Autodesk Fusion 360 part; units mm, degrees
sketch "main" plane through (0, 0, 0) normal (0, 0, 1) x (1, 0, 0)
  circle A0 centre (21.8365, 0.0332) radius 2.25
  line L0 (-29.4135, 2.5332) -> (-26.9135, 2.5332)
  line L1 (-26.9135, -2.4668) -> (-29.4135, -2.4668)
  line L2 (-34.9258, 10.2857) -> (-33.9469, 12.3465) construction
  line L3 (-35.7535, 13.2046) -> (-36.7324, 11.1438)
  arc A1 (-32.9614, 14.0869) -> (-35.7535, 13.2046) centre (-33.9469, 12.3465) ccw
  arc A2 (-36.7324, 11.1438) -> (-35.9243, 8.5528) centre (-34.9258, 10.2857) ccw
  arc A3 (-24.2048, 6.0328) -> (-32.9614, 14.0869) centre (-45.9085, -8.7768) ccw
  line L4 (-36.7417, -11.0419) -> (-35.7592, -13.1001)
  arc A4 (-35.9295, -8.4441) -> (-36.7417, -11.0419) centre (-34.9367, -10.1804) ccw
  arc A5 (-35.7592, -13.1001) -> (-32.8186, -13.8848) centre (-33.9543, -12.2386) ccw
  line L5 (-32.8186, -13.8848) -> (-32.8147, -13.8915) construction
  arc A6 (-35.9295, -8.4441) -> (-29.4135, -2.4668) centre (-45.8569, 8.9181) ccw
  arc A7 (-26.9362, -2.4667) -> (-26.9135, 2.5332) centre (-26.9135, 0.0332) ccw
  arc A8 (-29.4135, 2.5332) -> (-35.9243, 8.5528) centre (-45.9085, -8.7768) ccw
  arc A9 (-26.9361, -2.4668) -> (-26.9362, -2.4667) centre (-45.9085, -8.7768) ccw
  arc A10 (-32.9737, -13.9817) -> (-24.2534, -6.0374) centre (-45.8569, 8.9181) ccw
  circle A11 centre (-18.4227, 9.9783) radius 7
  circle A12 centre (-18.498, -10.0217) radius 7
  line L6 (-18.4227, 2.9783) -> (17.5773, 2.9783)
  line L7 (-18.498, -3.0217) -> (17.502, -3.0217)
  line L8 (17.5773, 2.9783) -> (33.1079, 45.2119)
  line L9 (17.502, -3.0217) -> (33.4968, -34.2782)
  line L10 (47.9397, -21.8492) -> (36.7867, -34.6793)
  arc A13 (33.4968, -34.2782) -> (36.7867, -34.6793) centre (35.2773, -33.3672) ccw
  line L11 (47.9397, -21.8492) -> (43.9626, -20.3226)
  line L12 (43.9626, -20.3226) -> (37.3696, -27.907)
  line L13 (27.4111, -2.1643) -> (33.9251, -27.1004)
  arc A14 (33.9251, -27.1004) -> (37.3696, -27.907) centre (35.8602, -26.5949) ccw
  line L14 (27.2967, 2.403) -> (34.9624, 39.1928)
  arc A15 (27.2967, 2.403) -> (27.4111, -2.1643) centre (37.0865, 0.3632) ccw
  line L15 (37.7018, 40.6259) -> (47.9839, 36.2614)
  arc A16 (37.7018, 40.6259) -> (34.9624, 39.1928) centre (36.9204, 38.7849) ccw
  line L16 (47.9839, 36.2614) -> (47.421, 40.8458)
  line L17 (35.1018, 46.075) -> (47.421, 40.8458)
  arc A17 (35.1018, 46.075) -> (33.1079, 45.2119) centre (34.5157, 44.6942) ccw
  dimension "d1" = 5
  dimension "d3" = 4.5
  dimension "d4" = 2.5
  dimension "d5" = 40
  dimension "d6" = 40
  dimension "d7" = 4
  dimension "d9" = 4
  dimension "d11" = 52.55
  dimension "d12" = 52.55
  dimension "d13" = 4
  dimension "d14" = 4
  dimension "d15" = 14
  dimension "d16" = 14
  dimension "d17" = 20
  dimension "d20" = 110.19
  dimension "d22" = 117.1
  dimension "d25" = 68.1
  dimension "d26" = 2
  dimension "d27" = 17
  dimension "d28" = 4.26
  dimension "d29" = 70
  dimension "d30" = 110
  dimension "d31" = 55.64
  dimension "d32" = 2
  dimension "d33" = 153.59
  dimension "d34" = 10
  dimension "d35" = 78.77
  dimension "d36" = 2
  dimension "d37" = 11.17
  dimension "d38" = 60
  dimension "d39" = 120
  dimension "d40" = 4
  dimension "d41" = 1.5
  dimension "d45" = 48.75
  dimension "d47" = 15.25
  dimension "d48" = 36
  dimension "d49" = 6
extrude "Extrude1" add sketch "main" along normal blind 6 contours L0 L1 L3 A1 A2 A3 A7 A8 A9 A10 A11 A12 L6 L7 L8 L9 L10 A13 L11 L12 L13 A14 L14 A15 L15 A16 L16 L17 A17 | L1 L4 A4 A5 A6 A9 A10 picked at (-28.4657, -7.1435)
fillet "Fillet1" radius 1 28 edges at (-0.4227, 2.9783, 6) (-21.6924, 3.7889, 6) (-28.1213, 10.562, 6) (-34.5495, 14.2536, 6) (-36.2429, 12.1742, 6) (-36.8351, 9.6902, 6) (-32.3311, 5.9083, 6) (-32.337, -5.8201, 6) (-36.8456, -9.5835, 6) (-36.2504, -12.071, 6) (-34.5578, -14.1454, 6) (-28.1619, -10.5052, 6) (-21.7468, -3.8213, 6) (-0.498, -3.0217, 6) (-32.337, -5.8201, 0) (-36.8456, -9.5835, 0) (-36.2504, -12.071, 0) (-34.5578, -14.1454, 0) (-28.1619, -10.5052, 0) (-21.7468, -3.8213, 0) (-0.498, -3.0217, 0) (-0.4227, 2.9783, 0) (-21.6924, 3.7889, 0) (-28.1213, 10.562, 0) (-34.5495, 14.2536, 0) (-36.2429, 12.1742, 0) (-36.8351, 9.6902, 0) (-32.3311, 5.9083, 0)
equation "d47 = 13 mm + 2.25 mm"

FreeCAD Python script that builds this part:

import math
import FreeCAD as App
import Part
import Sketcher
Q = App.Units.Quantity


def edges_at(feature, points):
    """Names of the edges that pass closest to the given points."""
    edges = feature.Shape.Edges
    near = lambda p: min(range(len(edges)), key=lambda i: edges[i].distToShape(Part.Vertex(*p))[0])
    return sorted({f"Edge{near(p) + 1}" for p in points})

doc = App.newDocument("Part")
params = doc.addObject("Spreadsheet::Sheet", "Params")
for row, (alias, value) in enumerate([
    ("sketch1_radius", "20 mm"),
    ("sketch1_radius2", "2 mm"),
    ("sketch1_radius3", "7 mm"),
    ("sketch1_radius4", "10 mm"),
    ("sketch1_diameter", "4.5 mm"),
    ("pad1_length", "6 mm"),
    ("fillet_radius", "1 mm"),
], start=1):
    params.set(f"A{row}", alias)
    params.set(f"B{row}", "=" + value)
    params.setAlias(f"B{row}", alias)

body = doc.addObject("PartDesign::Body", "Body")

sketch1 = doc.addObject("Sketcher::SketchObject", "Sketch")
body.addObject(sketch1)
sketch1.AttachmentSupport = (doc.XY_Plane, [""])
sketch1.MapMode = "FlatFace"
sketch1.addGeometry(Part.ArcOfCircle(Part.Circle(App.Vector(-45.9085, -8.7768, 0), App.Vector(0, 0, 1), 20.000028), math.radians(34.436964), math.radians(60.052223)), False)
sketch1.addGeometry(Part.LineSegment(App.Vector(-29.4135, 2.5332, 0), App.Vector(-26.9135, 2.5332, 0)), False)
sketch1.addGeometry(Part.ArcOfCircle(Part.Circle(App.Vector(-26.9135, 0.0332, 0), App.Vector(0, 0, 1), 2.500003), math.radians(-90), math.radians(90)), False)
sketch1.addGeometry(Part.LineSegment(App.Vector(-26.9135, -2.4668, 0), App.Vector(-29.4135, -2.4668, 0)), False)
sketch1.addGeometry(Part.ArcOfCircle(Part.Circle(App.Vector(-45.857527, 8.918959, 0), App.Vector(0, 0, 1), 20.001039), math.radians(-60.2395), math.radians(-34.698527)), False)
sketch1.addGeometry(Part.ArcOfCircle(Part.Circle(App.Vector(-34.9367, -10.1804, 0), App.Vector(0, 0, 1), 2.000097), math.radians(119.760515), math.radians(205.514458)), False)
sketch1.addGeometry(Part.LineSegment(App.Vector(-36.7417, -11.0419, 0), App.Vector(-35.7592, -13.1001, 0)), False)
sketch1.addGeometry(Part.ArcOfCircle(Part.Circle(App.Vector(-33.9543, -12.2386, 0), App.Vector(0, 0, 1), 1.999962), math.radians(-154.484308), math.radians(-60.639594)), False)
sketch1.addGeometry(Part.ArcOfCircle(Part.Circle(App.Vector(-45.8569, 8.9181, 0), App.Vector(0, 0, 1), 26.275039), math.radians(-60.638327), math.radians(-34.693774)), False)
sketch1.addGeometry(Part.ArcOfCircle(Part.Circle(App.Vector(-18.498, -10.0217, 0), App.Vector(0, 0, 1), 7), math.radians(90), math.radians(145.306244)), False)
sketch1.addGeometry(Part.LineSegment(App.Vector(-18.498, -3.0217, 0), App.Vector(17.502, -3.0217, 0)), False)
sketch1.addGeometry(Part.LineSegment(App.Vector(17.502, -3.0217, 0), App.Vector(33.4968, -34.2782, 0)), False)
sketch1.addGeometry(Part.ArcOfCircle(Part.Circle(App.Vector(35.2773, -33.3672, 0), App.Vector(0, 0, 1), 2.000025), math.radians(-152.903261), math.radians(-40.99997)), False)
sketch1.addGeometry(Part.LineSegment(App.Vector(36.7867, -34.6793, 0), App.Vector(47.9397, -21.8492, 0)), False)
sketch1.addGeometry(Part.LineSegment(App.Vector(47.9397, -21.8492, 0), App.Vector(43.9626, -20.3226, 0)), False)
sketch1.addGeometry(Part.LineSegment(App.Vector(43.9626, -20.3226, 0), App.Vector(37.3696, -27.907, 0)), False)
sketch1.addGeometry(Part.ArcOfCircle(Part.Circle(App.Vector(35.8602, -26.5949, 0), App.Vector(0, 0, 1), 2.000036), math.radians(-165.359963), math.radians(-40.99997)), False)
sketch1.addGeometry(Part.LineSegment(App.Vector(33.9251, -27.1004, 0), App.Vector(27.4111, -2.1643, 0)), False)
sketch1.addGeometry(Part.ArcOfCircle(Part.Circle(App.Vector(37.0865, 0.3632, 0), App.Vector(0, 0, 1), 10.000048), math.radians(168.230262), math.radians(194.640182)), False)
sketch1.addGeometry(Part.LineSegment(App.Vector(27.2967, 2.403, 0), App.Vector(34.9624, 39.1928, 0)), False)
sketch1.addGeometry(Part.ArcOfCircle(Part.Circle(App.Vector(36.9204, 38.7849, 0), App.Vector(0, 0, 1), 1.999967), math.radians(67.001533), math.radians(168.232178)), False)
sketch1.addGeometry(Part.LineSegment(App.Vector(37.7018, 40.6259, 0), App.Vector(47.9839, 36.2614, 0)), False)
sketch1.addGeometry(Part.LineSegment(App.Vector(47.9839, 36.2614, 0), App.Vector(47.421, 40.8458, 0)), False)
sketch1.addGeometry(Part.LineSegment(App.Vector(47.421, 40.8458, 0), App.Vector(35.1018, 46.075, 0)), False)
sketch1.addGeometry(Part.ArcOfCircle(Part.Circle(App.Vector(34.5157, 44.6942, 0), App.Vector(0, 0, 1), 1.500041), math.radians(67.000521), math.radians(159.809663)), False)
sketch1.addGeometry(Part.LineSegment(App.Vector(33.1079, 45.2119, 0), App.Vector(17.5773, 2.9783, 0)), False)
sketch1.addGeometry(Part.LineSegment(App.Vector(17.5773, 2.9783, 0), App.Vector(-18.4227, 2.9783, 0)), False)
sketch1.addGeometry(Part.ArcOfCircle(Part.Circle(App.Vector(-18.4227, 9.9783, 0), App.Vector(0, 0, 1), 7), math.radians(-145.691759), math.radians(-90)), False)
sketch1.addGeometry(Part.ArcOfCircle(Part.Circle(App.Vector(-45.9085, -8.7768, 0), App.Vector(0, 0, 1), 26.274985), math.radians(34.307818), math.radians(60.478286)), False)
sketch1.addGeometry(Part.ArcOfCircle(Part.Circle(App.Vector(-33.9469, 12.3465, 0), App.Vector(0, 0, 1), 2.000051), math.radians(60.479329), math.radians(154.593188)), False)
sketch1.addGeometry(Part.LineSegment(App.Vector(-35.7535, 13.2046, 0), App.Vector(-36.7324, 11.1438, 0)), False)
sketch1.addGeometry(Part.ArcOfCircle(Part.Circle(App.Vector(-34.9258, 10.2857, 0), App.Vector(0, 0, 1), 2.000035), math.radians(154.593188), math.radians(240.049379)), False)
sketch1.addGeometry(Part.Circle(App.Vector(21.8365, 0.0332, 0), App.Vector(0, 0, 1), 2.25), False)
sketch1.addConstraint(Sketcher.Constraint("Coincident", 0, 1, 1, 1))
sketch1.addConstraint(Sketcher.Constraint("Tangent", 1, 2, 2, 2))
sketch1.addConstraint(Sketcher.Constraint("Tangent", 2, 1, 3, 1))
sketch1.addConstraint(Sketcher.Constraint("Coincident", 3, 2, 4, 2))
sketch1.addConstraint(Sketcher.Constraint("Tangent", 4, 1, 5, 1))
sketch1.addConstraint(Sketcher.Constraint("Tangent", 5, 2, 6, 1))
sketch1.addConstraint(Sketcher.Constraint("Tangent", 6, 2, 7, 1))
sketch1.addConstraint(Sketcher.Constraint("Tangent", 7, 2, 8, 1))
sketch1.addConstraint(Sketcher.Constraint("Tangent", 8, 2, 9, 2))
sketch1.addConstraint(Sketcher.Constraint("Tangent", 9, 1, 10, 1))
sketch1.addConstraint(Sketcher.Constraint("Coincident", 10, 2, 11, 1))
sketch1.addConstraint(Sketcher.Constraint("Tangent", 11, 2, 12, 1))
sketch1.addConstraint(Sketcher.Constraint("Tangent", 12, 2, 13, 1))
sketch1.addConstraint(Sketcher.Constraint("Coincident", 13, 2, 14, 1))
sketch1.addConstraint(Sketcher.Constraint("Coincident", 14, 2, 15, 1))
sketch1.addConstraint(Sketcher.Constraint("Tangent", 15, 2, 16, 2))
sketch1.addConstraint(Sketcher.Constraint("Tangent", 16, 1, 17, 1))
sketch1.addConstraint(Sketcher.Constraint("Tangent", 17, 2, 18, 2))
sketch1.addConstraint(Sketcher.Constraint("Tangent", 18, 1, 19, 1))
sketch1.addConstraint(Sketcher.Constraint("Tangent", 19, 2, 20, 2))
sketch1.addConstraint(Sketcher.Constraint("Tangent", 20, 1, 21, 1))
sketch1.addConstraint(Sketcher.Constraint("Coincident", 21, 2, 22, 1))
sketch1.addConstraint(Sketcher.Constraint("Coincident", 22, 2, 23, 1))
sketch1.addConstraint(Sketcher.Constraint("Tangent", 23, 2, 24, 1))
sketch1.addConstraint(Sketcher.Constraint("Tangent", 24, 2, 25, 1))
sketch1.addConstraint(Sketcher.Constraint("Coincident", 25, 2, 26, 1))
sketch1.addConstraint(Sketcher.Constraint("Tangent", 26, 2, 27, 2))
sketch1.addConstraint(Sketcher.Constraint("Tangent", 27, 1, 28, 1))
sketch1.addConstraint(Sketcher.Constraint("Tangent", 28, 2, 29, 1))
sketch1.addConstraint(Sketcher.Constraint("Tangent", 29, 2, 30, 1))
sketch1.addConstraint(Sketcher.Constraint("Tangent", 30, 2, 31, 1))
sketch1.addConstraint(Sketcher.Constraint("Tangent", 31, 2, 0, 2))
sketch1.addConstraint(Sketcher.Constraint("Horizontal", 1))
sketch1.addConstraint(Sketcher.Constraint("Horizontal", 3))
sketch1.addConstraint(Sketcher.Constraint("Horizontal", 10))
sketch1.addConstraint(Sketcher.Constraint("Horizontal", 26))
sketch1.addConstraint(Sketcher.Constraint("Coincident", 28, 3, 0, 3))
sketch1.addConstraint(Sketcher.Constraint("Equal", 5, 7))
sketch1.addConstraint(Sketcher.Constraint("Equal", 7, 12))
sketch1.addConstraint(Sketcher.Constraint("Equal", 12, 16))
sketch1.addConstraint(Sketcher.Constraint("Equal", 16, 20))
sketch1.addConstraint(Sketcher.Constraint("Equal", 9, 27))
sketch1.addConstraint(Sketcher.Constraint("Equal", 8, 28))
sketch1.addConstraint(Sketcher.Constraint("Equal", 20, 29))
sketch1.addConstraint(Sketcher.Constraint("Equal", 29, 31))
sketch1.addConstraint(Sketcher.Constraint("Parallel", 13, 15))
sketch1.addConstraint(Sketcher.Constraint("Parallel", 21, 23))
sketch1.addConstraint(Sketcher.Constraint("Horizontal", 2, 3, 32, 3))
sketch1.addConstraint(Sketcher.Constraint("Vertical", 0, 1, 3, 2))
sketch1.addConstraint(Sketcher.Constraint("Equal", 10, 26))
sketch1.addConstraint(Sketcher.Constraint("Radius", 0, Q("20 mm")))
sketch1.addConstraint(Sketcher.Constraint("Radius", 5, Q("2 mm")))
sketch1.addConstraint(Sketcher.Constraint("Radius", 9, Q("7 mm")))
sketch1.addConstraint(Sketcher.Constraint("Radius", 18, Q("10 mm")))
sketch1.addConstraint(Sketcher.Constraint("Diameter", 32, Q("4.5 mm")))
sketch1.addConstraint(Sketcher.Constraint("Radius", 2, Q("2.5 mm")))
sketch1.addConstraint(Sketcher.Constraint("Radius", 24, Q("1.5 mm")))
sketch1.addConstraint(Sketcher.Constraint("DistanceX", 10, 1, 10, 2, Q("36 mm")))
sketch1.addConstraint(Sketcher.Constraint("Distance", 13, Q("17 mm")))
sketch1.addConstraint(Sketcher.Constraint("DistanceX", 1, 1, 1, 2, Q("2.5 mm")))
sketch1.addConstraint(Sketcher.Constraint("Radius", 8, Q("26.275 mm")))
sketch1.addConstraint(Sketcher.Constraint("DistanceY", 9, 3, 27, 3, Q("20 mm")))
sketch1.addConstraint(Sketcher.Constraint("Angle", 25, Q("-110.19 deg")))
sketch1.addConstraint(Sketcher.Constraint("Distance", 14, Q("4.26 mm")))
sketch1.addConstraint(Sketcher.Constraint("Distance", 21, Q("11.17 mm")))
sketch1.addConstraint(Sketcher.Constraint("Angle", 13, Q("49 deg")))
sketch1.addConstraint(Sketcher.Constraint("Angle", 14, Q("159.0008 deg")))
sketch1.addConstraint(Sketcher.Constraint("Angle", 21, Q("-23 deg")))
sketch1.addConstraint(Sketcher.Constraint("Angle", 22, Q("97 deg")))
sketch1.addConstraint(Sketcher.Constraint("DistanceX", 32, 3, 18, 3, Q("15.25 mm")))
sketch1.addConstraint(Sketcher.Constraint("Angle", 11, Q("-62.9 deg")))
sketch1.addConstraint(Sketcher.Constraint("Radius", 4, Q("20.001 mm")))
sketch1.addConstraint(Sketcher.Constraint("DistanceX", 2, 3, 18, 3, Q("64 mm")))
sketch1.addConstraint(Sketcher.Constraint("DistanceY", 6, 2, -1, 1, Q("13.1 mm")))
sketch1.addConstraint(Sketcher.Constraint("Angle", 17, Q("104.64 deg")))
sketch1.addConstraint(Sketcher.Constraint("Angle", 19, Q("78.23 deg")))
sketch1.addConstraint(Sketcher.Constraint("DistanceX", 23, 2, 20, 1, Q("2.6 mm")))
sketch1.addConstraint(Sketcher.Constraint("DistanceY", 2, 3, 27, 1, Q("5.9996 mm")))
sketch1.addConstraint(Sketcher.Constraint("Distance", 19, Q("37.58 mm")))
sketch1.addConstraint(Sketcher.Constraint("DistanceY", 0, 3, 2, 3, Q("8.81 mm")))
sketch1.addConstraint(Sketcher.Constraint("DistanceY", 2, 3, 18, 3, Q("0.33 mm")))
sketch1.addConstraint(Sketcher.Constraint("DistanceX", 8, 3, 29, 3, Q("11.91 mm")))
sketch1.addConstraint(Sketcher.Constraint("DistanceX", 2, 1, 8, 2, Q("2.66 mm")))
sketch1.addConstraint(Sketcher.Constraint("DistanceY", -1, 1, 4, 3, Q("8.919 mm")))
sketch1.addConstraint(Sketcher.Constraint("DistanceX", 8, 3, -1, 1, Q("45.857 mm")))
sketch1.addConstraint(Sketcher.Constraint("DistanceY", -1, 1, 8, 3, Q("8.918 mm")))
sketch1.addConstraint(Sketcher.Constraint("DistanceX", 9, 3, -1, 1, Q("18.498 mm")))
sketch1.addConstraint(Sketcher.Constraint("DistanceY", 16, 3, -1, 1, Q("26.595 mm")))
sketch1.addConstraint(Sketcher.Constraint("DistanceY", 4, 1, -1, 1, Q("8.444 mm")))
sketch1.addConstraint(Sketcher.Constraint("DistanceX", 31, 3, 29, 3, Q("0.979 mm")))
sketch1.setExpression("Constraints[50]", "Params.sketch1_radius")
sketch1.setExpression("Constraints[51]", "Params.sketch1_radius2")
sketch1.setExpression("Constraints[52]", "Params.sketch1_radius3")
sketch1.setExpression("Constraints[53]", "Params.sketch1_radius4")
sketch1.setExpression("Constraints[54]", "Params.sketch1_diameter")
pad1 = doc.addObject("PartDesign::Pad", "Pad")
body.addObject(pad1)
pad1.Profile = sketch1
pad1.setExpression("Length", "Params.pad1_length")
doc.recompute()

fillet = doc.addObject("PartDesign::Fillet", "Fillet")
body.addObject(fillet)
fillet.Base = (pad1, edges_at(pad1, [
    (-0.423, 2.978, 6),
    (-21.692, 3.789, 6),
    (-28.121, 10.562, 6),
    (-34.55, 14.254, 6),
    (-36.243, 12.174, 6),
    (-36.835, 9.69, 6),
    (-32.331, 5.908, 6),
    (-32.337, -5.82, 6),
    (-36.846, -9.584, 6),
    (-36.25, -12.071, 6),
    (-34.558, -14.145, 6),
    (-28.162, -10.505, 6),
    (-21.747, -3.821, 6),
    (-0.498, -3.022, 6),
    (-32.337, -5.82, 0),
    (-36.846, -9.584, 0),
    (-36.25, -12.071, 0),
    (-34.558, -14.145, 0),
    (-28.162, -10.505, 0),
    (-21.747, -3.821, 0),
    (-0.498, -3.022, 0),
    (-0.423, 2.978, 0),
    (-21.692, 3.789, 0),
    (-28.121, 10.562, 0),
    (-34.55, 14.254, 0),
    (-36.243, 12.174, 0),
    (-36.835, 9.69, 0),
    (-32.331, 5.908, 0),
]))
fillet.setExpression("Radius", "Params.fillet_radius")

doc.recompute()
